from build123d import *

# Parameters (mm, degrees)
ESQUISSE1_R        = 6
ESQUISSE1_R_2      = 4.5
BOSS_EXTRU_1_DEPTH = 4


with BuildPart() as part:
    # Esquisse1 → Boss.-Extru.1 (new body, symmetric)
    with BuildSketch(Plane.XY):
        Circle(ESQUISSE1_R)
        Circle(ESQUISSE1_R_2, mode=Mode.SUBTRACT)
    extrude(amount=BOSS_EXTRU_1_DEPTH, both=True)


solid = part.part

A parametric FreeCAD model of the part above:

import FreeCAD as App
import Part
import Sketcher
from FreeCAD import Vector

doc = App.newDocument("Part")
body = doc.addObject("PartDesign::Body", "Body")

# Sketch on XY plane
sketch1 = doc.addObject("Sketcher::SketchObject", "Sketch")
body.addObject(sketch1)
sketch1.AttachmentSupport = (doc.XY_Plane, [""])
sketch1.MapMode = "FlatFace"
sketch1.addGeometry([
    Part.Circle(Vector(0, 0, 0), Vector(0, 0, 1), 6),
    Part.Circle(Vector(0, 0, 0), Vector(0, 0, 1), 4.5),
], False)
sketch1.addConstraint([
    Sketcher.Constraint("Coincident", 0, 3, -1, 1),
    Sketcher.Constraint("Coincident", 1, 3, -1, 1),
    Sketcher.Constraint("Diameter", 0, 12.0),
    Sketcher.Constraint("Diameter", 1, 9.0),
])
pad1 = doc.addObject("PartDesign::Pad", "Pad")
body.addObject(pad1)
pad1.Profile = sketch1
pad1.Length = 8
pad1.Midplane = True

doc.recompute()
